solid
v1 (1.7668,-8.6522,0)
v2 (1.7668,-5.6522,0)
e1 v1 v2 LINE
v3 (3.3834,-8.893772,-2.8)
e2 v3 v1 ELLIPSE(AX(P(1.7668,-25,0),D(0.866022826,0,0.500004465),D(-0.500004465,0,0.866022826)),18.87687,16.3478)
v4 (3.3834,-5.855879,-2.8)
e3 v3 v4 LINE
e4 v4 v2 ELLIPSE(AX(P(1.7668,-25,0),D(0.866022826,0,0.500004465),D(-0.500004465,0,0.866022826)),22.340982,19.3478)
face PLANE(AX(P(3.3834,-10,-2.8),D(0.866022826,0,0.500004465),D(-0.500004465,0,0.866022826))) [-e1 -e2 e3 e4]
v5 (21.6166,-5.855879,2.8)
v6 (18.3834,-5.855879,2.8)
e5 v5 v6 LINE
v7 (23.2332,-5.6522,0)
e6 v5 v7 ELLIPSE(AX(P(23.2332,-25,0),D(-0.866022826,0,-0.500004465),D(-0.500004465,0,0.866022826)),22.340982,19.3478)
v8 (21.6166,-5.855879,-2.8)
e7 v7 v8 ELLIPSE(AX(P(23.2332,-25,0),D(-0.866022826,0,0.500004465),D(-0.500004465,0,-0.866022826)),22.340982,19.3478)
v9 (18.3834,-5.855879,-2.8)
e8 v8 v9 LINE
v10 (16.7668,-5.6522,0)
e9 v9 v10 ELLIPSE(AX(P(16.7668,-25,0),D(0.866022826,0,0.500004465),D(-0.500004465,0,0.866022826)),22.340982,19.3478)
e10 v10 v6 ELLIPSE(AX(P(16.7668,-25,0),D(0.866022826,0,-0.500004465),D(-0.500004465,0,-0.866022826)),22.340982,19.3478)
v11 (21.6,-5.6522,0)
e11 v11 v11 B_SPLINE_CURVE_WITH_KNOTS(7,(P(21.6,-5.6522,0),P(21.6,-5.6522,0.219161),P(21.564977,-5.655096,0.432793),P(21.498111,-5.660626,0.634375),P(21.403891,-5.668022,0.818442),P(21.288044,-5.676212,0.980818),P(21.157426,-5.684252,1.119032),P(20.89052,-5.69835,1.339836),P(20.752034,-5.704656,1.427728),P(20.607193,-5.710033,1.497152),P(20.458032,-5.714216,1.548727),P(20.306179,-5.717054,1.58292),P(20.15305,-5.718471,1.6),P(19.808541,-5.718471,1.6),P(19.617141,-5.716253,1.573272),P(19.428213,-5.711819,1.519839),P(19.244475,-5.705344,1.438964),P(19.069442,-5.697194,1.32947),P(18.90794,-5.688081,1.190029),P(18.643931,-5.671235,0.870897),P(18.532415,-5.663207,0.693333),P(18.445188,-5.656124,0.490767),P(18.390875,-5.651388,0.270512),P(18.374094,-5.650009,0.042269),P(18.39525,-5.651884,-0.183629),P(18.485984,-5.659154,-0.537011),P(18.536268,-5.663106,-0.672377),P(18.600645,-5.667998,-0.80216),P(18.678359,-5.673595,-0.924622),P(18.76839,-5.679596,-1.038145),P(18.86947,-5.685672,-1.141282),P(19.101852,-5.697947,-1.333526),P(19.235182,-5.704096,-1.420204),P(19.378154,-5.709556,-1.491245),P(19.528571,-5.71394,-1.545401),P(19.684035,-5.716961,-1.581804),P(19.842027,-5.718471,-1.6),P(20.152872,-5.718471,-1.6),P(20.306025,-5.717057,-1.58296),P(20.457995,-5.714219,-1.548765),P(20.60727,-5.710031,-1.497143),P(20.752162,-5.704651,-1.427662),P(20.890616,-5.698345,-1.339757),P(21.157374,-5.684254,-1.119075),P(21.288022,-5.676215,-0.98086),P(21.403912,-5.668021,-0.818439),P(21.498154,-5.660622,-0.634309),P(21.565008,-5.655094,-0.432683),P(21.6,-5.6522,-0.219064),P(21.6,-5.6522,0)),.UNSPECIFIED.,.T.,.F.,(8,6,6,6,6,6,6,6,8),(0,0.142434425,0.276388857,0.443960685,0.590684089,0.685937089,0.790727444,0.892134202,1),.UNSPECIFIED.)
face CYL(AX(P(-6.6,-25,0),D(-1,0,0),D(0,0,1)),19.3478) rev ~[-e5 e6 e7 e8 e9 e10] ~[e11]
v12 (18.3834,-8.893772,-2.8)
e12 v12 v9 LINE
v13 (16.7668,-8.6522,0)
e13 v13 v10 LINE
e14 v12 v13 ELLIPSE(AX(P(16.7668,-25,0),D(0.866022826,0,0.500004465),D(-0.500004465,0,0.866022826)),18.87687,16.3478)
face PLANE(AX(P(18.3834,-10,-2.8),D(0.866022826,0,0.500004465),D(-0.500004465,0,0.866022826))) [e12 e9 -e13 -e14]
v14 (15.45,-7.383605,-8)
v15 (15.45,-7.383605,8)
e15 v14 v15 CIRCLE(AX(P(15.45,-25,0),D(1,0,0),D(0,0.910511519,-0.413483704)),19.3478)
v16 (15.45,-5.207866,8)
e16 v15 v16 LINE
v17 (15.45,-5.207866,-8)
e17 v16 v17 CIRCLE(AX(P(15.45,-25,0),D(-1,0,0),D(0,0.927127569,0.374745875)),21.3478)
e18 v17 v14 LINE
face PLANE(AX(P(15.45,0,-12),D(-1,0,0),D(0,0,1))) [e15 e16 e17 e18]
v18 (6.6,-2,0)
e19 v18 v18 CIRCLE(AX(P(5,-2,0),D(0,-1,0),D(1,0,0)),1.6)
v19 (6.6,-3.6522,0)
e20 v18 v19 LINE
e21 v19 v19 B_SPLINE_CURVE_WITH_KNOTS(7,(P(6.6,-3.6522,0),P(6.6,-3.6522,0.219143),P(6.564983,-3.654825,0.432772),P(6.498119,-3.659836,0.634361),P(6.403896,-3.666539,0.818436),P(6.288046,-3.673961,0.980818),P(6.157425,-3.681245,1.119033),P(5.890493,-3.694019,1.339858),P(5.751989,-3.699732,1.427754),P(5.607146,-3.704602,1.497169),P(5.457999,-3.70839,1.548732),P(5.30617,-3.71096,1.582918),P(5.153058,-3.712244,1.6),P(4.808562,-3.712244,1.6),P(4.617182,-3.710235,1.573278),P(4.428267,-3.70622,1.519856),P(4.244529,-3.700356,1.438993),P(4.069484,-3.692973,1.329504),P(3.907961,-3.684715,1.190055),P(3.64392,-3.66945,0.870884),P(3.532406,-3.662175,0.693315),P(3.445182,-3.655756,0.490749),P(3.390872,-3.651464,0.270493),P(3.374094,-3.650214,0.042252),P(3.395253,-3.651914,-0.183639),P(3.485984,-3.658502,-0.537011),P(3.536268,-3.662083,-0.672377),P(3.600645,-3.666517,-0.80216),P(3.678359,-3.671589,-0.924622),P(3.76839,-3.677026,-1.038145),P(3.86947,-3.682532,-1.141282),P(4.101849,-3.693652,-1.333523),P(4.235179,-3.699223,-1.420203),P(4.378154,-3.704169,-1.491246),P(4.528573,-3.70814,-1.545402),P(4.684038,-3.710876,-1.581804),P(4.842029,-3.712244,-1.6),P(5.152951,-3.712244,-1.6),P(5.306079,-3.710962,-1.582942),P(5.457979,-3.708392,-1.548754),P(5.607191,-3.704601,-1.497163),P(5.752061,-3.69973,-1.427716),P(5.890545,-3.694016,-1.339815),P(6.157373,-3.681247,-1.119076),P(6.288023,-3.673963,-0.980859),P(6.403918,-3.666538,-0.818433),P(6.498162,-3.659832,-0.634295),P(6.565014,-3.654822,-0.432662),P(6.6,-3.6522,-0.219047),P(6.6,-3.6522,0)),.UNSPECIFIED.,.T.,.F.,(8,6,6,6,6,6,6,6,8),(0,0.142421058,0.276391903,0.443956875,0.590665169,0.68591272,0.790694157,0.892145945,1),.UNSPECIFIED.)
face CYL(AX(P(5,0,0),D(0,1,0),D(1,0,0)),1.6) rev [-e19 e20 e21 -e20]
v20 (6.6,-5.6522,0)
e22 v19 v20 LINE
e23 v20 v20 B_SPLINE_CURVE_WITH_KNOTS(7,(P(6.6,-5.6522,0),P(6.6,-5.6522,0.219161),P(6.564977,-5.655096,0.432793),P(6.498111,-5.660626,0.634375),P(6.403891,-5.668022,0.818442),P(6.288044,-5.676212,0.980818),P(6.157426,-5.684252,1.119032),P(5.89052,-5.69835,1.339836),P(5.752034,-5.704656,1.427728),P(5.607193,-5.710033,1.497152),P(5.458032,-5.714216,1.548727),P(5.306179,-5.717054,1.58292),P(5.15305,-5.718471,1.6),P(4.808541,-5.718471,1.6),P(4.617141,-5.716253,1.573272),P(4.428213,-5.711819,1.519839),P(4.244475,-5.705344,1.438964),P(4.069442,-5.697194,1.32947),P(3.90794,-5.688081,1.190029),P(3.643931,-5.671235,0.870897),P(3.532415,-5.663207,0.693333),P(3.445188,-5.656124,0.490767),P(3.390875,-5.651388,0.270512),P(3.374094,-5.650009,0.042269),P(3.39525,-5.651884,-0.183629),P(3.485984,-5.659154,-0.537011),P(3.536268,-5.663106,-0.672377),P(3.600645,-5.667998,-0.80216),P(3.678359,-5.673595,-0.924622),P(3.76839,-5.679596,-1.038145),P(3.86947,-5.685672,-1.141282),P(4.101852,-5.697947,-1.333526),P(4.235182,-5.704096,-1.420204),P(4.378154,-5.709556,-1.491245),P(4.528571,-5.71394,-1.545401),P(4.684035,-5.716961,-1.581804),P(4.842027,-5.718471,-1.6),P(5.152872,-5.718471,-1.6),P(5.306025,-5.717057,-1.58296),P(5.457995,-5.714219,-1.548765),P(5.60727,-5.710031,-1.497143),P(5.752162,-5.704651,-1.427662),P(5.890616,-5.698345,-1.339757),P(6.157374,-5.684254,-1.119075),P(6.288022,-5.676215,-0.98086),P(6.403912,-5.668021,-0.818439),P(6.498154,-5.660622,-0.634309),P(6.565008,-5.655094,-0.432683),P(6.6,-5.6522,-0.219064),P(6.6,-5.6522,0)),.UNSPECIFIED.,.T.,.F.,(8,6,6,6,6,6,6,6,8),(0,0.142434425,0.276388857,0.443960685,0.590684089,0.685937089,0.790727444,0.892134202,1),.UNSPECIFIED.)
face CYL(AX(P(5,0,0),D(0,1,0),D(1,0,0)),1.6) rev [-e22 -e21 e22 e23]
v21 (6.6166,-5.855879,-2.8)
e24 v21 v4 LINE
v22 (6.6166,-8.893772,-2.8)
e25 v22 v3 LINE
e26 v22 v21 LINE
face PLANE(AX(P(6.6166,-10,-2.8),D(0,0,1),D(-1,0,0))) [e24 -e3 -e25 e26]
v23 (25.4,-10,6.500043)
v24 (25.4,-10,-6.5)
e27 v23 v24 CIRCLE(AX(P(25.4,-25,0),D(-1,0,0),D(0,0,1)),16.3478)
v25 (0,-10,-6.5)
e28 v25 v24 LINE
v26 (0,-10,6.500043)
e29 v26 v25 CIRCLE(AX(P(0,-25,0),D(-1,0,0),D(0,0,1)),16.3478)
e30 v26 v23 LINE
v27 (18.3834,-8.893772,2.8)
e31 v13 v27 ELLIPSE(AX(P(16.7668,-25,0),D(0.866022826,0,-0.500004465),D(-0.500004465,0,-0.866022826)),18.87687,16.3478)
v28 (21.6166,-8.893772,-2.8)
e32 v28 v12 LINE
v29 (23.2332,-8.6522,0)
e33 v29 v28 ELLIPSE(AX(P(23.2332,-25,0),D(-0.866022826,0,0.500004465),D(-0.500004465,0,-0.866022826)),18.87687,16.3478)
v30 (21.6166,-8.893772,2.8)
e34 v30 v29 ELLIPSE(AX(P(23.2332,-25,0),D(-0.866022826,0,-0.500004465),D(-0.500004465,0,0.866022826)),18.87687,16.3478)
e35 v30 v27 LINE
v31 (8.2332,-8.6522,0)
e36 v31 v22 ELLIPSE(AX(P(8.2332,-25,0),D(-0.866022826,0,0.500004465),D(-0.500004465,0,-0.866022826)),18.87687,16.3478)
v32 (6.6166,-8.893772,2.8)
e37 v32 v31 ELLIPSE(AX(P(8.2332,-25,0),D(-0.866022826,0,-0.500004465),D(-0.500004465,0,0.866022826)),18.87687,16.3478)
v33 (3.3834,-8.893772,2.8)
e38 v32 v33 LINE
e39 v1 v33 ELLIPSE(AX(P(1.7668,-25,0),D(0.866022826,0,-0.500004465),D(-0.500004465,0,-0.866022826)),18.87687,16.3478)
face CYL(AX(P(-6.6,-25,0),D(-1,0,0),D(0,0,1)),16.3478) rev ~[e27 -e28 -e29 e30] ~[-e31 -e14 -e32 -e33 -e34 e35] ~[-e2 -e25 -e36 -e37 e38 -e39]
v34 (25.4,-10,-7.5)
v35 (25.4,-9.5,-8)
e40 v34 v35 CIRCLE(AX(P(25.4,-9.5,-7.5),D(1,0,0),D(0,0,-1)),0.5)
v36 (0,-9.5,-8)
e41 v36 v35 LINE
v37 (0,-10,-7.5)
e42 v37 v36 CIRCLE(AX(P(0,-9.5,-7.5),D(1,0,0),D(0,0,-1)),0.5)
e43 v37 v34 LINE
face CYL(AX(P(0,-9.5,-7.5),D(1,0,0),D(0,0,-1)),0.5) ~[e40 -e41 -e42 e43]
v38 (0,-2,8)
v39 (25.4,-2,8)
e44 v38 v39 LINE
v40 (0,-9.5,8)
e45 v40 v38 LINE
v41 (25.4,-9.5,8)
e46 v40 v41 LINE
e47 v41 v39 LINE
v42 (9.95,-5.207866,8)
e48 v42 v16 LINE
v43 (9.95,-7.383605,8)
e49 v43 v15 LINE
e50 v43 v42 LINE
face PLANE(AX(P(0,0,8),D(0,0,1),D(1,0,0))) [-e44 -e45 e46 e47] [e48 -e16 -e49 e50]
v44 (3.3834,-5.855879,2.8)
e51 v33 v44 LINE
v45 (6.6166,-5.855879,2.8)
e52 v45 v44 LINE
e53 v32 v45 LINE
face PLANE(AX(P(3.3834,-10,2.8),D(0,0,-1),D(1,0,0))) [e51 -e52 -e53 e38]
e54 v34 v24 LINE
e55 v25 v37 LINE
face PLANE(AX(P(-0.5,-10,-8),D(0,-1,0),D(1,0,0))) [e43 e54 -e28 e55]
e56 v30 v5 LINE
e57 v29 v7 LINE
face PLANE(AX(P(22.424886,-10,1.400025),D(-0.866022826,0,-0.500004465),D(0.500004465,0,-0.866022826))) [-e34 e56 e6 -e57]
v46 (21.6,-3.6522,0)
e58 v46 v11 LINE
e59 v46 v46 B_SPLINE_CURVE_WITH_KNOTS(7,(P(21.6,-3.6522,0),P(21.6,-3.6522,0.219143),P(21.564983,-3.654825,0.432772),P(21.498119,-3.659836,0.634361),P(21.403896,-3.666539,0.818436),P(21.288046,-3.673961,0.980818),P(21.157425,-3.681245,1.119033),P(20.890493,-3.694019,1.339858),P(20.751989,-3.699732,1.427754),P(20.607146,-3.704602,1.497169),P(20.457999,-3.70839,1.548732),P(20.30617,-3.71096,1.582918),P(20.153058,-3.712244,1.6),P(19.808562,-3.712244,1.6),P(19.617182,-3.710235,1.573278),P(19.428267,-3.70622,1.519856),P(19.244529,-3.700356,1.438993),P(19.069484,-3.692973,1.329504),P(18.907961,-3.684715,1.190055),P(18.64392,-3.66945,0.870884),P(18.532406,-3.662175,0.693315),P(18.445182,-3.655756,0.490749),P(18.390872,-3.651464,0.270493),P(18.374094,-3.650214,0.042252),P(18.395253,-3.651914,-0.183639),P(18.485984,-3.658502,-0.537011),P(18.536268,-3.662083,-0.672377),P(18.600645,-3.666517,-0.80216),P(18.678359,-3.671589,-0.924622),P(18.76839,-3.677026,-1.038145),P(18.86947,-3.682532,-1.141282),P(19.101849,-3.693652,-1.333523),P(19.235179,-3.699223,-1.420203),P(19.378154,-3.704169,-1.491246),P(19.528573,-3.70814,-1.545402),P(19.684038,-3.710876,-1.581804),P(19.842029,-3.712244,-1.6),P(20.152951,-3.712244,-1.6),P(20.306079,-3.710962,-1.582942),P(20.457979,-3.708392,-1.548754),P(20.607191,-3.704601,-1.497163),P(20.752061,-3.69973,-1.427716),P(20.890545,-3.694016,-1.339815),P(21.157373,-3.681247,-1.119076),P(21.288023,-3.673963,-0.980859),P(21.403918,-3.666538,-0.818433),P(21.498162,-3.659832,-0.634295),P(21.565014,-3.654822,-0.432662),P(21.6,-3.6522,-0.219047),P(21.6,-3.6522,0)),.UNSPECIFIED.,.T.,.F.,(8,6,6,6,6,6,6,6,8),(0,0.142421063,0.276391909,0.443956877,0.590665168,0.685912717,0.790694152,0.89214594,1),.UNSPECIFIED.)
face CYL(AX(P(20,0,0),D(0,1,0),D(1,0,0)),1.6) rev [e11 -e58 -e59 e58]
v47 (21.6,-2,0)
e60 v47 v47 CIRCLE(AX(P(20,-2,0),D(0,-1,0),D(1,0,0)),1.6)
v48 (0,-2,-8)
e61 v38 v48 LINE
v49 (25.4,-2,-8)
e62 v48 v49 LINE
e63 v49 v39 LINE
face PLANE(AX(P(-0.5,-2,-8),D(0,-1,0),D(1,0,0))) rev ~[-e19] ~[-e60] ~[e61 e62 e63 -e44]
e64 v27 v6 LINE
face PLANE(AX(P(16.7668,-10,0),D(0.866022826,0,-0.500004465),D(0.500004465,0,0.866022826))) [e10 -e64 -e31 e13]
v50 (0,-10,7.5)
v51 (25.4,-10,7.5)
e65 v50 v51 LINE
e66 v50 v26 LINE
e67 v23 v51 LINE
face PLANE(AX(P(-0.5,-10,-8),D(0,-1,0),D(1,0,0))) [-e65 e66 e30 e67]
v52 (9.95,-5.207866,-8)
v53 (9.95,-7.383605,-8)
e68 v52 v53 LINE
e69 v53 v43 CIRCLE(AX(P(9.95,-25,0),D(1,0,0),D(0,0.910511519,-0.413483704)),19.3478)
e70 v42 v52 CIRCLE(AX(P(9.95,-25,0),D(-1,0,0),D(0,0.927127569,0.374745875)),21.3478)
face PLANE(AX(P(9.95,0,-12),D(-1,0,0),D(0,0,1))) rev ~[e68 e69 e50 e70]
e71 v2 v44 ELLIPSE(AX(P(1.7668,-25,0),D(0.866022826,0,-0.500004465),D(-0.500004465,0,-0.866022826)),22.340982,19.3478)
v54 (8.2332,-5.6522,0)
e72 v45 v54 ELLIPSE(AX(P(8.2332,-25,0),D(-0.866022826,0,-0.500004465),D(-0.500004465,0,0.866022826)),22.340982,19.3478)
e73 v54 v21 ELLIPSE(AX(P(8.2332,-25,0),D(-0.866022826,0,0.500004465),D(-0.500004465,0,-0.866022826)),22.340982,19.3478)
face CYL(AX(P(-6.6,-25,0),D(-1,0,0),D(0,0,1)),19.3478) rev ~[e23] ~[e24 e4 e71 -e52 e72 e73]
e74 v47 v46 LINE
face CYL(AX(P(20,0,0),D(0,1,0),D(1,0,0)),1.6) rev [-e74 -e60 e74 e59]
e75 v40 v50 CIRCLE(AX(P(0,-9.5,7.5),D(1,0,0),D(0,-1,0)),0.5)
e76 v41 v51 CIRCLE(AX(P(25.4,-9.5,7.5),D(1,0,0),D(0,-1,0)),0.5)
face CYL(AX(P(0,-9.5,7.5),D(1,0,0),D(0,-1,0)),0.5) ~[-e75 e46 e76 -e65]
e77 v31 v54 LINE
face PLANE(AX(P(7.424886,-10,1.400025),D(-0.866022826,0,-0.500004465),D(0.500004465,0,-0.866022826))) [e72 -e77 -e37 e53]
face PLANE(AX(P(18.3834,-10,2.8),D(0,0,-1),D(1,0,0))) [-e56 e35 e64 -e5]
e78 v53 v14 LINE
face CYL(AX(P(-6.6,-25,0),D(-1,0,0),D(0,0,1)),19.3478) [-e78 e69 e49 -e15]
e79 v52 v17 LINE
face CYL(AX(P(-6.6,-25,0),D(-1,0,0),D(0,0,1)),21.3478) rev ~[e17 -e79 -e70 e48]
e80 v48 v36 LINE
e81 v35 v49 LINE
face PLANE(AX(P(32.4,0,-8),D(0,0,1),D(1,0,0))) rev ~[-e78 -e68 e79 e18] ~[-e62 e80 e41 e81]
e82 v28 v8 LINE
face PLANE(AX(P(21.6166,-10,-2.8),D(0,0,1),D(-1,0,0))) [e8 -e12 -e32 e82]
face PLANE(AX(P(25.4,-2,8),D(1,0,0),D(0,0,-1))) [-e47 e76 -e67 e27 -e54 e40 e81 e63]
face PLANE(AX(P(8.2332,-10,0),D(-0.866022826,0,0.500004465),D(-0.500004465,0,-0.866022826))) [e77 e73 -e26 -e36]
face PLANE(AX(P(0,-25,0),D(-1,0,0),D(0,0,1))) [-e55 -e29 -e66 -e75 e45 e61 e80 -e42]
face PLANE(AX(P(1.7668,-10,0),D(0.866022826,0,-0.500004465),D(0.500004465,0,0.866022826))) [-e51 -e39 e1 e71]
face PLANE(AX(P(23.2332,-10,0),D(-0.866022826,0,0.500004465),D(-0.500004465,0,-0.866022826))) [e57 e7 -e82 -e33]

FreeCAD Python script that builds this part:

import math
import FreeCAD as App
import Part
import Sketcher
Q = App.Units.Quantity


def edges_at(feature, points):
    """Names of the edges that pass closest to the given points."""
    edges = feature.Shape.Edges
    near = lambda p: min(range(len(edges)), key=lambda i: edges[i].distToShape(Part.Vertex(*p))[0])
    return sorted({f"Edge{near(p) + 1}" for p in points})

doc = App.newDocument("Part")
params = doc.addObject("Spreadsheet::Sheet", "Params")
for row, (alias, value) in enumerate([
    ("sketch1_diameter", "3.2 mm"),
    ("sketch1_height", "24 mm"),
    ("sketch1_height2", "4 mm"),
    ("sketch1_width", "6.6 mm"),
    ("sketch1_width2", "34.4 mm"),
    ("pad1_length", "10 mm"),
    ("sketch2_width", "15 mm"),
    ("sketch2_height", "13 mm"),
    ("pocket1_length", "41 mm"),
    ("pocket2_length", "5 mm"),
    ("pocket3_length", "38 mm"),
    ("pad2_length", "32.5 mm"),
    ("pocket4_length", "22.05 mm"),
    ("pad3_length", "16.55 mm"),
    ("sketch8_diameter", "3.2 mm"),
    ("pocket5_length", "16.55 mm"),
    ("sketch9_diameter", "3.2 mm"),
    ("sketch9_height", "24 mm"),
    ("sketch9_height2", "4 mm"),
    ("sketch9_width", "6.6 mm"),
    ("sketch9_width2", "34.4 mm"),
    ("pocket6_length", "2 mm"),
    ("fillet_radius", "0.5 mm"),
    ("pocket7_length", "9 mm"),
    ("pocket8_length", "6.6 mm"),
], start=1):
    params.set(f"A{row}", alias)
    params.set(f"B{row}", "=" + value)
    params.setAlias(f"B{row}", alias)

body = doc.addObject("PartDesign::Body", "Body")

# Sketch on XZ plane
sketch1 = doc.addObject("Sketcher::SketchObject", "Sketch")
body.addObject(sketch1)
sketch1.AttachmentSupport = (doc.XZ_Plane, [""])
sketch1.MapMode = "FlatFace"
sketch1.addGeometry([
    Part.LineSegment(App.Vector(0, 12, 0), App.Vector(-6.6, 12, 0)),  # 0
    Part.LineSegment(App.Vector(-6.6, 12, 0), App.Vector(-6.6, -12, 0)),  # 1
    Part.LineSegment(App.Vector(-6.6, -12, 0), App.Vector(0, -12, 0)),  # 2
    Part.LineSegment(App.Vector(0, -12, 0), App.Vector(0, -8, 0)),  # 3
    Part.LineSegment(App.Vector(0, -8, 0), App.Vector(34.4, -8, 0)),  # 4
    Part.LineSegment(App.Vector(34.4, -8, 0), App.Vector(34.4, 8, 0)),  # 5
    Part.LineSegment(App.Vector(34.4, 8, 0), App.Vector(0, 8, 0)),  # 6
    Part.LineSegment(App.Vector(0, 8, 0), App.Vector(0, 12, 0)),  # 7
    Part.Circle(App.Vector(20, 0, 0), App.Vector(0, 0, 1), 1.6),  # 8
    Part.Circle(App.Vector(5, 0, 0), App.Vector(0, 0, 1), 1.6),  # 9
], False)
sketch1.addConstraint([
    Sketcher.Constraint("Coincident", 0, 2, 1, 1),
    Sketcher.Constraint("Coincident", 1, 2, 2, 1),
    Sketcher.Constraint("Coincident", 2, 2, 3, 1),
    Sketcher.Constraint("Coincident", 3, 2, 4, 1),
    Sketcher.Constraint("Coincident", 4, 2, 5, 1),
    Sketcher.Constraint("Coincident", 5, 2, 6, 1),
    Sketcher.Constraint("Coincident", 6, 2, 7, 1),
    Sketcher.Constraint("Coincident", 7, 2, 0, 1),
    Sketcher.Constraint("Horizontal", 0),
    Sketcher.Constraint("Vertical", 1),
    Sketcher.Constraint("Horizontal", 2),
    Sketcher.Constraint("Vertical", 3),
    Sketcher.Constraint("Horizontal", 4),
    Sketcher.Constraint("Vertical", 5),
    Sketcher.Constraint("Horizontal", 6),
    Sketcher.Constraint("Vertical", 7),
    Sketcher.Constraint("Equal", 8, 9),
    Sketcher.Constraint("Symmetric", 3, 2, 6, 2, -1, 1),
    Sketcher.Constraint("Symmetric", 2, 2, 7, 2, -1),
    Sketcher.Constraint("PointOnObject", 8, 3, -1),
    Sketcher.Constraint("PointOnObject", 9, 3, -1),
    Sketcher.Constraint("Diameter", 8, 3.2),
    Sketcher.Constraint("DistanceY", 1, 2, 1, 1, 24.0),
    Sketcher.Constraint("DistanceY", 3, 1, 3, 2, 4.0),
    Sketcher.Constraint("DistanceX", 0, 2, 0, 1, 6.6),
    Sketcher.Constraint("DistanceX", 4, 1, 4, 2, 34.4),
    Sketcher.Constraint("DistanceX", -1, 1, 8, 3, 20.0),
    Sketcher.Constraint("DistanceX", -1, 1, 9, 3, 5.0),
])
sketch1.setExpression("Constraints[21]", "Params.sketch1_diameter")
sketch1.setExpression("Constraints[22]", "Params.sketch1_height")
sketch1.setExpression("Constraints[23]", "Params.sketch1_height2")
sketch1.setExpression("Constraints[24]", "Params.sketch1_width")
sketch1.setExpression("Constraints[25]", "Params.sketch1_width2")
pad1 = doc.addObject("PartDesign::Pad", "Pad")
body.addObject(pad1)
pad1.Profile = sketch1
pad1.setExpression("Length", "Params.pad1_length")

# Sketch on YZ plane
sketch2 = doc.addObject("Sketcher::SketchObject", "Sketch001")
body.addObject(sketch2)
sketch2.AttachmentSupport = (doc.YZ_Plane, [""])
sketch2.MapMode = "FlatFace"
sketch2.AttachmentOffset = App.Placement(App.Vector(0, 0, -6.6), App.Rotation())
sketch2.addGeometry([
    Part.ArcOfCircle(Part.Circle(App.Vector(-25, 0, 0), App.Vector(0, 0, 1), 16), math.radians(-23), math.radians(23)),
    Part.LineSegment(App.Vector(-10, 7, 0), App.Vector(-10, -6, 0)),
], False)
sketch2.addConstraint([
    Sketcher.Constraint("Coincident", 0, 1, 1, 2),
    Sketcher.Constraint("Coincident", 1, 1, 0, 2),
    Sketcher.Constraint("Vertical", 1),
    Sketcher.Constraint("PointOnObject", 0, 3, -1),
    Sketcher.Constraint("DistanceX", 0, 1, -1, 1, 10.0),
    Sketcher.Constraint("DistanceX", 0, 3, 0, 1, 15.0),
    Sketcher.Constraint("DistanceY", 1, 2, 1, 1, 13.0),
])
sketch2.setExpression("Constraints[5]", "Params.sketch2_width")
sketch2.setExpression("Constraints[6]", "Params.sketch2_height")
pocket1 = doc.addObject("PartDesign::Pocket", "Pocket")
body.addObject(pocket1)
pocket1.Profile = sketch2
pocket1.setExpression("Length", "Params.pocket1_length")
pocket1.Reversed = True

# Sketch on XZ plane
sketch3 = doc.addObject("Sketcher::SketchObject", "Sketch002")
body.addObject(sketch3)
sketch3.AttachmentSupport = (doc.XZ_Plane, [""])
sketch3.MapMode = "FlatFace"
sketch3.AttachmentOffset = App.Placement(App.Vector(0, 0, 10), App.Rotation())
sketch3.addGeometry([
    Part.LineSegment(App.Vector(23.2, 0, 0), App.Vector(21.6, 2.8, 0)),  # 0
    Part.LineSegment(App.Vector(21.6, 2.8, 0), App.Vector(18.4, 2.8, 0)),  # 1
    Part.LineSegment(App.Vector(18.4, 2.8, 0), App.Vector(16.8, 0, 0)),  # 2
    Part.LineSegment(App.Vector(16.8, 0, 0), App.Vector(18.4, -2.8, 0)),  # 3
    Part.LineSegment(App.Vector(18.4, -2.8, 0), App.Vector(21.6, -2.8, 0)),  # 4
    Part.LineSegment(App.Vector(21.6, -2.8, 0), App.Vector(23.2, 0, 0)),  # 5
    Part.LineSegment(App.Vector(8.2, 0, 0), App.Vector(6.6, 2.8, 0)),  # 6
    Part.LineSegment(App.Vector(6.6, 2.8, 0), App.Vector(3.4, 2.8, 0)),  # 7
    Part.LineSegment(App.Vector(3.4, 2.8, 0), App.Vector(1.8, 0, 0)),  # 8
    Part.LineSegment(App.Vector(1.8, 0, 0), App.Vector(3.4, -2.8, 0)),  # 9
    Part.LineSegment(App.Vector(3.4, -2.8, 0), App.Vector(6.6, -2.8, 0)),  # 10
    Part.LineSegment(App.Vector(6.6, -2.8, 0), App.Vector(8.2, 0, 0)),  # 11
], False)
sketch3.addConstraint([
    Sketcher.Constraint("Coincident", 0, 2, 1, 1),
    Sketcher.Constraint("Coincident", 1, 2, 2, 1),
    Sketcher.Constraint("Coincident", 2, 2, 3, 1),
    Sketcher.Constraint("Coincident", 3, 2, 4, 1),
    Sketcher.Constraint("Coincident", 4, 2, 5, 1),
    Sketcher.Constraint("Coincident", 5, 2, 0, 1),
    Sketcher.Constraint("Coincident", 6, 2, 7, 1),
    Sketcher.Constraint("Coincident", 7, 2, 8, 1),
    Sketcher.Constraint("Coincident", 8, 2, 9, 1),
    Sketcher.Constraint("Coincident", 9, 2, 10, 1),
    Sketcher.Constraint("Coincident", 10, 2, 11, 1),
    Sketcher.Constraint("Coincident", 11, 2, 6, 1),
    Sketcher.Constraint("Horizontal", 1),
    Sketcher.Constraint("Horizontal", 4),
    Sketcher.Constraint("Horizontal", 7),
    Sketcher.Constraint("Horizontal", 10),
    Sketcher.Constraint("Symmetric", 1, 2, 3, 2, -1),
    Sketcher.Constraint("Symmetric", 7, 2, 9, 2, -1),
    Sketcher.Constraint("PointOnObject", 2, 2, -1),
    Sketcher.Constraint("PointOnObject", 5, 2, -1),
    Sketcher.Constraint("PointOnObject", 8, 2, -1),
    Sketcher.Constraint("PointOnObject", 11, 2, -1),
    Sketcher.Constraint("Parallel", 0, 3),
    Sketcher.Constraint("Parallel", 2, 5),
    Sketcher.Constraint("Parallel", 3, 6),
    Sketcher.Constraint("Parallel", 5, 8),
    Sketcher.Constraint("Parallel", 8, 11),
    Sketcher.Constraint("Horizontal", 1, 2, 6, 2),
    Sketcher.Constraint("Equal", 4, 7),
    Sketcher.Constraint("DistanceY", 3, 2, 1, 2, 5.6),
    Sketcher.Constraint("Angle", 0, Q("120.0003 deg")),
    Sketcher.Constraint("DistanceX", 6, 2, 0, 2, 15.0),
    Sketcher.Constraint("DistanceX", 1, 2, 1, 1, 3.2332),
    Sketcher.Constraint("DistanceX", -1, 1, 0, 2, 21.6166),
])
pocket2 = doc.addObject("PartDesign::Pocket", "Pocket001")
body.addObject(pocket2)
pocket2.Profile = sketch3
pocket2.setExpression("Length", "Params.pocket2_length")

# Sketch on YZ plane
sketch4 = doc.addObject("Sketcher::SketchObject", "Sketch003")
body.addObject(sketch4)
sketch4.AttachmentSupport = (doc.YZ_Plane, [""])
sketch4.MapMode = "FlatFace"
sketch4.AttachmentOffset = App.Placement(App.Vector(0, 0, -6.6), App.Rotation())
sketch4.addGeometry([
    Part.LineSegment(App.Vector(-5.2, -8, 0), App.Vector(-7.4, -8, 0)),
    Part.ArcOfCircle(Part.Circle(App.Vector(-25, 0, 0), App.Vector(0, 0, 1), 19.3), math.radians(-24), math.radians(24)),
    Part.LineSegment(App.Vector(-7.4, 8, 0), App.Vector(-5.2, 8, 0)),
    Part.ArcOfCircle(Part.Circle(App.Vector(-25, 0, 0), App.Vector(0, 0, 1), 21.3), math.radians(-22), math.radians(22)),
], False)
sketch4.addConstraint([
    Sketcher.Constraint("Coincident", 0, 2, 1, 1),
    Sketcher.Constraint("Coincident", 1, 2, 2, 1),
    Sketcher.Constraint("Coincident", 2, 2, 3, 2),
    Sketcher.Constraint("Coincident", 3, 1, 0, 1),
    Sketcher.Constraint("Horizontal", 0),
    Sketcher.Constraint("Horizontal", 2),
    Sketcher.Constraint("Coincident", 3, 3, 1, 3),
    Sketcher.Constraint("Symmetric", 0, 2, 1, 2, -1),
    Sketcher.Constraint("DistanceY", 0, 2, 1, 2, 16.0),
    Sketcher.Constraint("DistanceX", 1, 3, -1, 1, 25.0),
    Sketcher.Constraint("Radius", 1, 19.3478),
    Sketcher.Constraint("Radius", 3, 21.3478),
])
pocket3 = doc.addObject("PartDesign::Pocket", "Pocket002")
body.addObject(pocket3)
pocket3.Profile = sketch4
pocket3.setExpression("Length", "Params.pocket3_length")
pocket3.Reversed = True

# Sketch on YZ plane
sketch5 = doc.addObject("Sketcher::SketchObject", "Sketch004")
body.addObject(sketch5)
sketch5.AttachmentSupport = (doc.YZ_Plane, [""])
sketch5.MapMode = "FlatFace"
sketch5.AttachmentOffset = App.Placement(App.Vector(0, 0, -6.6), App.Rotation())
sketch5.addGeometry([
    Part.LineSegment(App.Vector(-5.2, -8, 0), App.Vector(-7.4, -8, 0)),
    Part.ArcOfCircle(Part.Circle(App.Vector(-25, 0, 0), App.Vector(0, 0, 1), 19.3), math.radians(-24), math.radians(24)),
    Part.LineSegment(App.Vector(-7.4, 8, 0), App.Vector(-5.2, 8, 0)),
    Part.ArcOfCircle(Part.Circle(App.Vector(-25, 0, 0), App.Vector(0, 0, 1), 21.3), math.radians(-22), math.radians(22)),
], False)
sketch5.addConstraint([
    Sketcher.Constraint("Coincident", 0, 2, 1, 1),
    Sketcher.Constraint("Coincident", 1, 2, 2, 1),
    Sketcher.Constraint("Coincident", 2, 2, 3, 2),
    Sketcher.Constraint("Coincident", 3, 1, 0, 1),
    Sketcher.Constraint("Horizontal", 0),
    Sketcher.Constraint("Horizontal", 2),
    Sketcher.Constraint("Coincident", 3, 3, 1, 3),
    Sketcher.Constraint("Symmetric", 0, 2, 1, 2, -1),
    Sketcher.Constraint("DistanceY", 0, 2, 1, 2, 16.0),
    Sketcher.Constraint("DistanceX", 1, 3, -1, 1, 25.0),
    Sketcher.Constraint("Radius", 1, 19.3478),
    Sketcher.Constraint("Radius", 3, 21.3478),
])
pad2 = doc.addObject("PartDesign::Pad", "Pad001")
body.addObject(pad2)
pad2.Profile = sketch5
pad2.setExpression("Length", "Params.pad2_length")

# Sketch on YZ plane
sketch6 = doc.addObject("Sketcher::SketchObject", "Sketch005")
body.addObject(sketch6)
sketch6.AttachmentSupport = (doc.YZ_Plane, [""])
sketch6.MapMode = "FlatFace"
sketch6.AttachmentOffset = App.Placement(App.Vector(0, 0, -6.6), App.Rotation())
sketch6.addGeometry([
    Part.LineSegment(App.Vector(-5.2, -8, 0), App.Vector(-7.4, -8, 0)),
    Part.ArcOfCircle(Part.Circle(App.Vector(-25, 0, 0), App.Vector(0, 0, 1), 19.3), math.radians(-24), math.radians(24)),
    Part.LineSegment(App.Vector(-7.4, 8, 0), App.Vector(-5.2, 8, 0)),
    Part.ArcOfCircle(Part.Circle(App.Vector(-25, 0, 0), App.Vector(0, 0, 1), 21.3), math.radians(-22), math.radians(22)),
], False)
sketch6.addConstraint([
    Sketcher.Constraint("Coincident", 0, 2, 1, 1),
    Sketcher.Constraint("Coincident", 1, 2, 2, 1),
    Sketcher.Constraint("Coincident", 2, 2, 3, 2),
    Sketcher.Constraint("Coincident", 3, 1, 0, 1),
    Sketcher.Constraint("Horizontal", 0),
    Sketcher.Constraint("Horizontal", 2),
    Sketcher.Constraint("Coincident", 3, 3, 1, 3),
    Sketcher.Constraint("Symmetric", 0, 2, 1, 2, -1),
    Sketcher.Constraint("DistanceY", 0, 2, 1, 2, 16.0),
    Sketcher.Constraint("DistanceX", 1, 3, -1, 1, 25.0),
    Sketcher.Constraint("Radius", 1, 19.3478),
    Sketcher.Constraint("Radius", 3, 21.3478),
])
pocket4 = doc.addObject("PartDesign::Pocket", "Pocket003")
body.addObject(pocket4)
pocket4.Profile = sketch6
pocket4.setExpression("Length", "Params.pocket4_length")
pocket4.Reversed = True

# Sketch on YZ plane
sketch7 = doc.addObject("Sketcher::SketchObject", "Sketch006")
body.addObject(sketch7)
sketch7.AttachmentSupport = (doc.YZ_Plane, [""])
sketch7.MapMode = "FlatFace"
sketch7.AttachmentOffset = App.Placement(App.Vector(0, 0, -6.6), App.Rotation())
sketch7.addGeometry([
    Part.LineSegment(App.Vector(-5.2, -8, 0), App.Vector(-7.4, -8, 0)),
    Part.ArcOfCircle(Part.Circle(App.Vector(-25, 0, 0), App.Vector(0, 0, 1), 19.3), math.radians(-24), math.radians(24)),
    Part.LineSegment(App.Vector(-7.4, 8, 0), App.Vector(-5.2, 8, 0)),
    Part.ArcOfCircle(Part.Circle(App.Vector(-25, 0, 0), App.Vector(0, 0, 1), 21.3), math.radians(-22), math.radians(22)),
], False)
sketch7.addConstraint([
    Sketcher.Constraint("Coincident", 0, 2, 1, 1),
    Sketcher.Constraint("Coincident", 1, 2, 2, 1),
    Sketcher.Constraint("Coincident", 2, 2, 3, 2),
    Sketcher.Constraint("Coincident", 3, 1, 0, 1),
    Sketcher.Constraint("Horizontal", 0),
    Sketcher.Constraint("Horizontal", 2),
    Sketcher.Constraint("Coincident", 3, 3, 1, 3),
    Sketcher.Constraint("Symmetric", 0, 2, 1, 2, -1),
    Sketcher.Constraint("DistanceY", 0, 2, 1, 2, 16.0),
    Sketcher.Constraint("DistanceX", 1, 3, -1, 1, 25.0),
    Sketcher.Constraint("Radius", 1, 19.3478),
    Sketcher.Constraint("Radius", 3, 21.3478),
])
pad3 = doc.addObject("PartDesign::Pad", "Pad002")
body.addObject(pad3)
pad3.Profile = sketch7
pad3.setExpression("Length", "Params.pad3_length")

# Sketch on XZ plane
sketch8 = doc.addObject("Sketcher::SketchObject", "Sketch007")
body.addObject(sketch8)
sketch8.AttachmentSupport = (doc.XZ_Plane, [""])
sketch8.MapMode = "FlatFace"
sketch8.addGeometry([
    Part.Circle(App.Vector(5, 0, 0), App.Vector(0, 0, 1), 1.6),
    Part.Circle(App.Vector(20, 0, 0), App.Vector(0, 0, 1), 1.6),
], False)
sketch8.addConstraint([
    Sketcher.Constraint("Equal", 0, 1),
    Sketcher.Constraint("PointOnObject", 0, 3, -1),
    Sketcher.Constraint("PointOnObject", 1, 3, -1),
    Sketcher.Constraint("Diameter", 0, 3.2),
    Sketcher.Constraint("DistanceX", -1, 1, 0, 3, 5.0),
    Sketcher.Constraint("DistanceX", -1, 1, 1, 3, 20.0),
])
sketch8.setExpression("Constraints[3]", "Params.sketch8_diameter")
pocket5 = doc.addObject("PartDesign::Pocket", "Pocket004")
body.addObject(pocket5)
pocket5.Profile = sketch8
pocket5.setExpression("Length", "Params.pocket5_length")
pocket5.Reversed = True

# Sketch on XZ plane
sketch9 = doc.addObject("Sketcher::SketchObject", "Sketch008")
body.addObject(sketch9)
sketch9.AttachmentSupport = (doc.XZ_Plane, [""])
sketch9.MapMode = "FlatFace"
sketch9.addGeometry([
    Part.LineSegment(App.Vector(0, 12, 0), App.Vector(-6.6, 12, 0)),  # 0
    Part.LineSegment(App.Vector(-6.6, 12, 0), App.Vector(-6.6, -12, 0)),  # 1
    Part.LineSegment(App.Vector(-6.6, -12, 0), App.Vector(0, -12, 0)),  # 2
    Part.LineSegment(App.Vector(0, -12, 0), App.Vector(0, -8, 0)),  # 3
    Part.LineSegment(App.Vector(0, -8, 0), App.Vector(34.4, -8, 0)),  # 4
    Part.LineSegment(App.Vector(34.4, -8, 0), App.Vector(34.4, 8, 0)),  # 5
    Part.LineSegment(App.Vector(34.4, 8, 0), App.Vector(0, 8, 0)),  # 6
    Part.LineSegment(App.Vector(0, 8, 0), App.Vector(0, 12, 0)),  # 7
    Part.Circle(App.Vector(20, 0, 0), App.Vector(0, 0, 1), 1.6),  # 8
    Part.Circle(App.Vector(5, 0, 0), App.Vector(0, 0, 1), 1.6),  # 9
], False)
sketch9.addConstraint([
    Sketcher.Constraint("Coincident", 0, 2, 1, 1),
    Sketcher.Constraint("Coincident", 1, 2, 2, 1),
    Sketcher.Constraint("Coincident", 2, 2, 3, 1),
    Sketcher.Constraint("Coincident", 3, 2, 4, 1),
    Sketcher.Constraint("Coincident", 4, 2, 5, 1),
    Sketcher.Constraint("Coincident", 5, 2, 6, 1),
    Sketcher.Constraint("Coincident", 6, 2, 7, 1),
    Sketcher.Constraint("Coincident", 7, 2, 0, 1),
    Sketcher.Constraint("Horizontal", 0),
    Sketcher.Constraint("Vertical", 1),
    Sketcher.Constraint("Horizontal", 2),
    Sketcher.Constraint("Vertical", 3),
    Sketcher.Constraint("Horizontal", 4),
    Sketcher.Constraint("Vertical", 5),
    Sketcher.Constraint("Horizontal", 6),
    Sketcher.Constraint("Vertical", 7),
    Sketcher.Constraint("Equal", 8, 9),
    Sketcher.Constraint("Symmetric", 3, 2, 6, 2, -1, 1),
    Sketcher.Constraint("Symmetric", 2, 2, 7, 2, -1),
    Sketcher.Constraint("PointOnObject", 8, 3, -1),
    Sketcher.Constraint("PointOnObject", 9, 3, -1),
    Sketcher.Constraint("Diameter", 8, 3.2),
    Sketcher.Constraint("DistanceY", 1, 2, 1, 1, 24.0),
    Sketcher.Constraint("DistanceY", 3, 1, 3, 2, 4.0),
    Sketcher.Constraint("DistanceX", 0, 2, 0, 1, 6.6),
    Sketcher.Constraint("DistanceX", 4, 1, 4, 2, 34.4),
    Sketcher.Constraint("DistanceX", -1, 1, 8, 3, 20.0),
    Sketcher.Constraint("DistanceX", -1, 1, 9, 3, 5.0),
])
sketch9.setExpression("Constraints[21]", "Params.sketch9_diameter")
sketch9.setExpression("Constraints[22]", "Params.sketch9_height")
sketch9.setExpression("Constraints[23]", "Params.sketch9_height2")
sketch9.setExpression("Constraints[24]", "Params.sketch9_width")
sketch9.setExpression("Constraints[25]", "Params.sketch9_width2")
pocket6 = doc.addObject("PartDesign::Pocket", "Pocket005")
body.addObject(pocket6)
pocket6.Profile = sketch9
pocket6.setExpression("Length", "Params.pocket6_length")
pocket6.Reversed = True
doc.recompute()

fillet = doc.addObject("PartDesign::Fillet", "Fillet")
body.addObject(fillet)
fillet.Base = (pocket6, edges_at(pocket6, [
    (-3.3, -10, 12),
    (0, -10, 10),
    (17.2, -10, 8),
    (34.4, -10, 7.25),
    (34.4, -8.652, 0),
    (34.4, -10, -7.25),
    (17.2, -10, -8),
    (0, -10, -10),
    (-3.3, -10, -12),
]))
fillet.setExpression("Radius", "Params.fillet_radius")

# Sketch on YZ plane
sketch10 = doc.addObject("Sketcher::SketchObject", "Sketch009")
body.addObject(sketch10)
sketch10.AttachmentSupport = (doc.YZ_Plane, [""])
sketch10.MapMode = "FlatFace"
sketch10.AttachmentOffset = App.Placement(App.Vector(0, 0, 34.4), App.Rotation())
sketch10.addGeometry([
    Part.LineSegment(App.Vector(19, -40, 0), App.Vector(19, 40, 0)),
    Part.LineSegment(App.Vector(19, 40, 0), App.Vector(-31, 40, 0)),
    Part.LineSegment(App.Vector(-31, 40, 0), App.Vector(-31, -40, 0)),
    Part.LineSegment(App.Vector(-31, -40, 0), App.Vector(19, -40, 0)),
], False)
sketch10.addConstraint([
    Sketcher.Constraint("Coincident", 0, 2, 1, 1),
    Sketcher.Constraint("Coincident", 1, 2, 2, 1),
    Sketcher.Constraint("Coincident", 2, 2, 3, 1),
    Sketcher.Constraint("Coincident", 3, 2, 0, 1),
    Sketcher.Constraint("Vertical", 0),
    Sketcher.Constraint("Horizontal", 1),
    Sketcher.Constraint("Vertical", 2),
    Sketcher.Constraint("Horizontal", 3),
    Sketcher.Constraint("DistanceX", 1, 2, 1, 1, 49.6843),
    Sketcher.Constraint("DistanceY", 0, 1, 0, 2, 80.0804),
    Sketcher.Constraint("DistanceX", -1, 1, 0, 2, 18.783),
    Sketcher.Constraint("DistanceY", 2, 2, -1, 1, 40.419),
])
pocket7 = doc.addObject("PartDesign::Pocket", "Pocket006")
body.addObject(pocket7)
pocket7.Profile = sketch10
pocket7.setExpression("Length", "Params.pocket7_length")

# Sketch on YZ plane
sketch11 = doc.addObject("Sketcher::SketchObject", "Sketch010")
body.addObject(sketch11)
sketch11.AttachmentSupport = (doc.YZ_Plane, [""])
sketch11.MapMode = "FlatFace"
sketch11.AttachmentOffset = App.Placement(App.Vector(0, 0, -6.6), App.Rotation())
sketch11.addGeometry([
    Part.LineSegment(App.Vector(19, 28, 0), App.Vector(19, -51, 0)),
    Part.LineSegment(App.Vector(19, -51, 0), App.Vector(-21, -51, 0)),
    Part.LineSegment(App.Vector(-21, -51, 0), App.Vector(-21, 28, 0)),
    Part.LineSegment(App.Vector(-21, 28, 0), App.Vector(19, 28, 0)),
], False)
sketch11.addConstraint([
    Sketcher.Constraint("Coincident", 0, 2, 1, 1),
    Sketcher.Constraint("Coincident", 1, 2, 2, 1),
    Sketcher.Constraint("Coincident", 2, 2, 3, 1),
    Sketcher.Constraint("Coincident", 3, 2, 0, 1),
    Sketcher.Constraint("Vertical", 0),
    Sketcher.Constraint("Horizontal", 1),
    Sketcher.Constraint("Vertical", 2),
    Sketcher.Constraint("Horizontal", 3),
    Sketcher.Constraint("DistanceX", 1, 2, 1, 1, 39.6868),
    Sketcher.Constraint("DistanceY", 0, 2, 0, 1, 78.5657),
    Sketcher.Constraint("DistanceY", -1, 1, 2, 2, 27.594),
    Sketcher.Constraint("DistanceX", -1, 1, 0, 2, 18.6316),
])
pocket8 = doc.addObject("PartDesign::Pocket", "Pocket007")
body.addObject(pocket8)
pocket8.Profile = sketch11
pocket8.setExpression("Length", "Params.pocket8_length")
pocket8.Reversed = True

doc.recompute()
